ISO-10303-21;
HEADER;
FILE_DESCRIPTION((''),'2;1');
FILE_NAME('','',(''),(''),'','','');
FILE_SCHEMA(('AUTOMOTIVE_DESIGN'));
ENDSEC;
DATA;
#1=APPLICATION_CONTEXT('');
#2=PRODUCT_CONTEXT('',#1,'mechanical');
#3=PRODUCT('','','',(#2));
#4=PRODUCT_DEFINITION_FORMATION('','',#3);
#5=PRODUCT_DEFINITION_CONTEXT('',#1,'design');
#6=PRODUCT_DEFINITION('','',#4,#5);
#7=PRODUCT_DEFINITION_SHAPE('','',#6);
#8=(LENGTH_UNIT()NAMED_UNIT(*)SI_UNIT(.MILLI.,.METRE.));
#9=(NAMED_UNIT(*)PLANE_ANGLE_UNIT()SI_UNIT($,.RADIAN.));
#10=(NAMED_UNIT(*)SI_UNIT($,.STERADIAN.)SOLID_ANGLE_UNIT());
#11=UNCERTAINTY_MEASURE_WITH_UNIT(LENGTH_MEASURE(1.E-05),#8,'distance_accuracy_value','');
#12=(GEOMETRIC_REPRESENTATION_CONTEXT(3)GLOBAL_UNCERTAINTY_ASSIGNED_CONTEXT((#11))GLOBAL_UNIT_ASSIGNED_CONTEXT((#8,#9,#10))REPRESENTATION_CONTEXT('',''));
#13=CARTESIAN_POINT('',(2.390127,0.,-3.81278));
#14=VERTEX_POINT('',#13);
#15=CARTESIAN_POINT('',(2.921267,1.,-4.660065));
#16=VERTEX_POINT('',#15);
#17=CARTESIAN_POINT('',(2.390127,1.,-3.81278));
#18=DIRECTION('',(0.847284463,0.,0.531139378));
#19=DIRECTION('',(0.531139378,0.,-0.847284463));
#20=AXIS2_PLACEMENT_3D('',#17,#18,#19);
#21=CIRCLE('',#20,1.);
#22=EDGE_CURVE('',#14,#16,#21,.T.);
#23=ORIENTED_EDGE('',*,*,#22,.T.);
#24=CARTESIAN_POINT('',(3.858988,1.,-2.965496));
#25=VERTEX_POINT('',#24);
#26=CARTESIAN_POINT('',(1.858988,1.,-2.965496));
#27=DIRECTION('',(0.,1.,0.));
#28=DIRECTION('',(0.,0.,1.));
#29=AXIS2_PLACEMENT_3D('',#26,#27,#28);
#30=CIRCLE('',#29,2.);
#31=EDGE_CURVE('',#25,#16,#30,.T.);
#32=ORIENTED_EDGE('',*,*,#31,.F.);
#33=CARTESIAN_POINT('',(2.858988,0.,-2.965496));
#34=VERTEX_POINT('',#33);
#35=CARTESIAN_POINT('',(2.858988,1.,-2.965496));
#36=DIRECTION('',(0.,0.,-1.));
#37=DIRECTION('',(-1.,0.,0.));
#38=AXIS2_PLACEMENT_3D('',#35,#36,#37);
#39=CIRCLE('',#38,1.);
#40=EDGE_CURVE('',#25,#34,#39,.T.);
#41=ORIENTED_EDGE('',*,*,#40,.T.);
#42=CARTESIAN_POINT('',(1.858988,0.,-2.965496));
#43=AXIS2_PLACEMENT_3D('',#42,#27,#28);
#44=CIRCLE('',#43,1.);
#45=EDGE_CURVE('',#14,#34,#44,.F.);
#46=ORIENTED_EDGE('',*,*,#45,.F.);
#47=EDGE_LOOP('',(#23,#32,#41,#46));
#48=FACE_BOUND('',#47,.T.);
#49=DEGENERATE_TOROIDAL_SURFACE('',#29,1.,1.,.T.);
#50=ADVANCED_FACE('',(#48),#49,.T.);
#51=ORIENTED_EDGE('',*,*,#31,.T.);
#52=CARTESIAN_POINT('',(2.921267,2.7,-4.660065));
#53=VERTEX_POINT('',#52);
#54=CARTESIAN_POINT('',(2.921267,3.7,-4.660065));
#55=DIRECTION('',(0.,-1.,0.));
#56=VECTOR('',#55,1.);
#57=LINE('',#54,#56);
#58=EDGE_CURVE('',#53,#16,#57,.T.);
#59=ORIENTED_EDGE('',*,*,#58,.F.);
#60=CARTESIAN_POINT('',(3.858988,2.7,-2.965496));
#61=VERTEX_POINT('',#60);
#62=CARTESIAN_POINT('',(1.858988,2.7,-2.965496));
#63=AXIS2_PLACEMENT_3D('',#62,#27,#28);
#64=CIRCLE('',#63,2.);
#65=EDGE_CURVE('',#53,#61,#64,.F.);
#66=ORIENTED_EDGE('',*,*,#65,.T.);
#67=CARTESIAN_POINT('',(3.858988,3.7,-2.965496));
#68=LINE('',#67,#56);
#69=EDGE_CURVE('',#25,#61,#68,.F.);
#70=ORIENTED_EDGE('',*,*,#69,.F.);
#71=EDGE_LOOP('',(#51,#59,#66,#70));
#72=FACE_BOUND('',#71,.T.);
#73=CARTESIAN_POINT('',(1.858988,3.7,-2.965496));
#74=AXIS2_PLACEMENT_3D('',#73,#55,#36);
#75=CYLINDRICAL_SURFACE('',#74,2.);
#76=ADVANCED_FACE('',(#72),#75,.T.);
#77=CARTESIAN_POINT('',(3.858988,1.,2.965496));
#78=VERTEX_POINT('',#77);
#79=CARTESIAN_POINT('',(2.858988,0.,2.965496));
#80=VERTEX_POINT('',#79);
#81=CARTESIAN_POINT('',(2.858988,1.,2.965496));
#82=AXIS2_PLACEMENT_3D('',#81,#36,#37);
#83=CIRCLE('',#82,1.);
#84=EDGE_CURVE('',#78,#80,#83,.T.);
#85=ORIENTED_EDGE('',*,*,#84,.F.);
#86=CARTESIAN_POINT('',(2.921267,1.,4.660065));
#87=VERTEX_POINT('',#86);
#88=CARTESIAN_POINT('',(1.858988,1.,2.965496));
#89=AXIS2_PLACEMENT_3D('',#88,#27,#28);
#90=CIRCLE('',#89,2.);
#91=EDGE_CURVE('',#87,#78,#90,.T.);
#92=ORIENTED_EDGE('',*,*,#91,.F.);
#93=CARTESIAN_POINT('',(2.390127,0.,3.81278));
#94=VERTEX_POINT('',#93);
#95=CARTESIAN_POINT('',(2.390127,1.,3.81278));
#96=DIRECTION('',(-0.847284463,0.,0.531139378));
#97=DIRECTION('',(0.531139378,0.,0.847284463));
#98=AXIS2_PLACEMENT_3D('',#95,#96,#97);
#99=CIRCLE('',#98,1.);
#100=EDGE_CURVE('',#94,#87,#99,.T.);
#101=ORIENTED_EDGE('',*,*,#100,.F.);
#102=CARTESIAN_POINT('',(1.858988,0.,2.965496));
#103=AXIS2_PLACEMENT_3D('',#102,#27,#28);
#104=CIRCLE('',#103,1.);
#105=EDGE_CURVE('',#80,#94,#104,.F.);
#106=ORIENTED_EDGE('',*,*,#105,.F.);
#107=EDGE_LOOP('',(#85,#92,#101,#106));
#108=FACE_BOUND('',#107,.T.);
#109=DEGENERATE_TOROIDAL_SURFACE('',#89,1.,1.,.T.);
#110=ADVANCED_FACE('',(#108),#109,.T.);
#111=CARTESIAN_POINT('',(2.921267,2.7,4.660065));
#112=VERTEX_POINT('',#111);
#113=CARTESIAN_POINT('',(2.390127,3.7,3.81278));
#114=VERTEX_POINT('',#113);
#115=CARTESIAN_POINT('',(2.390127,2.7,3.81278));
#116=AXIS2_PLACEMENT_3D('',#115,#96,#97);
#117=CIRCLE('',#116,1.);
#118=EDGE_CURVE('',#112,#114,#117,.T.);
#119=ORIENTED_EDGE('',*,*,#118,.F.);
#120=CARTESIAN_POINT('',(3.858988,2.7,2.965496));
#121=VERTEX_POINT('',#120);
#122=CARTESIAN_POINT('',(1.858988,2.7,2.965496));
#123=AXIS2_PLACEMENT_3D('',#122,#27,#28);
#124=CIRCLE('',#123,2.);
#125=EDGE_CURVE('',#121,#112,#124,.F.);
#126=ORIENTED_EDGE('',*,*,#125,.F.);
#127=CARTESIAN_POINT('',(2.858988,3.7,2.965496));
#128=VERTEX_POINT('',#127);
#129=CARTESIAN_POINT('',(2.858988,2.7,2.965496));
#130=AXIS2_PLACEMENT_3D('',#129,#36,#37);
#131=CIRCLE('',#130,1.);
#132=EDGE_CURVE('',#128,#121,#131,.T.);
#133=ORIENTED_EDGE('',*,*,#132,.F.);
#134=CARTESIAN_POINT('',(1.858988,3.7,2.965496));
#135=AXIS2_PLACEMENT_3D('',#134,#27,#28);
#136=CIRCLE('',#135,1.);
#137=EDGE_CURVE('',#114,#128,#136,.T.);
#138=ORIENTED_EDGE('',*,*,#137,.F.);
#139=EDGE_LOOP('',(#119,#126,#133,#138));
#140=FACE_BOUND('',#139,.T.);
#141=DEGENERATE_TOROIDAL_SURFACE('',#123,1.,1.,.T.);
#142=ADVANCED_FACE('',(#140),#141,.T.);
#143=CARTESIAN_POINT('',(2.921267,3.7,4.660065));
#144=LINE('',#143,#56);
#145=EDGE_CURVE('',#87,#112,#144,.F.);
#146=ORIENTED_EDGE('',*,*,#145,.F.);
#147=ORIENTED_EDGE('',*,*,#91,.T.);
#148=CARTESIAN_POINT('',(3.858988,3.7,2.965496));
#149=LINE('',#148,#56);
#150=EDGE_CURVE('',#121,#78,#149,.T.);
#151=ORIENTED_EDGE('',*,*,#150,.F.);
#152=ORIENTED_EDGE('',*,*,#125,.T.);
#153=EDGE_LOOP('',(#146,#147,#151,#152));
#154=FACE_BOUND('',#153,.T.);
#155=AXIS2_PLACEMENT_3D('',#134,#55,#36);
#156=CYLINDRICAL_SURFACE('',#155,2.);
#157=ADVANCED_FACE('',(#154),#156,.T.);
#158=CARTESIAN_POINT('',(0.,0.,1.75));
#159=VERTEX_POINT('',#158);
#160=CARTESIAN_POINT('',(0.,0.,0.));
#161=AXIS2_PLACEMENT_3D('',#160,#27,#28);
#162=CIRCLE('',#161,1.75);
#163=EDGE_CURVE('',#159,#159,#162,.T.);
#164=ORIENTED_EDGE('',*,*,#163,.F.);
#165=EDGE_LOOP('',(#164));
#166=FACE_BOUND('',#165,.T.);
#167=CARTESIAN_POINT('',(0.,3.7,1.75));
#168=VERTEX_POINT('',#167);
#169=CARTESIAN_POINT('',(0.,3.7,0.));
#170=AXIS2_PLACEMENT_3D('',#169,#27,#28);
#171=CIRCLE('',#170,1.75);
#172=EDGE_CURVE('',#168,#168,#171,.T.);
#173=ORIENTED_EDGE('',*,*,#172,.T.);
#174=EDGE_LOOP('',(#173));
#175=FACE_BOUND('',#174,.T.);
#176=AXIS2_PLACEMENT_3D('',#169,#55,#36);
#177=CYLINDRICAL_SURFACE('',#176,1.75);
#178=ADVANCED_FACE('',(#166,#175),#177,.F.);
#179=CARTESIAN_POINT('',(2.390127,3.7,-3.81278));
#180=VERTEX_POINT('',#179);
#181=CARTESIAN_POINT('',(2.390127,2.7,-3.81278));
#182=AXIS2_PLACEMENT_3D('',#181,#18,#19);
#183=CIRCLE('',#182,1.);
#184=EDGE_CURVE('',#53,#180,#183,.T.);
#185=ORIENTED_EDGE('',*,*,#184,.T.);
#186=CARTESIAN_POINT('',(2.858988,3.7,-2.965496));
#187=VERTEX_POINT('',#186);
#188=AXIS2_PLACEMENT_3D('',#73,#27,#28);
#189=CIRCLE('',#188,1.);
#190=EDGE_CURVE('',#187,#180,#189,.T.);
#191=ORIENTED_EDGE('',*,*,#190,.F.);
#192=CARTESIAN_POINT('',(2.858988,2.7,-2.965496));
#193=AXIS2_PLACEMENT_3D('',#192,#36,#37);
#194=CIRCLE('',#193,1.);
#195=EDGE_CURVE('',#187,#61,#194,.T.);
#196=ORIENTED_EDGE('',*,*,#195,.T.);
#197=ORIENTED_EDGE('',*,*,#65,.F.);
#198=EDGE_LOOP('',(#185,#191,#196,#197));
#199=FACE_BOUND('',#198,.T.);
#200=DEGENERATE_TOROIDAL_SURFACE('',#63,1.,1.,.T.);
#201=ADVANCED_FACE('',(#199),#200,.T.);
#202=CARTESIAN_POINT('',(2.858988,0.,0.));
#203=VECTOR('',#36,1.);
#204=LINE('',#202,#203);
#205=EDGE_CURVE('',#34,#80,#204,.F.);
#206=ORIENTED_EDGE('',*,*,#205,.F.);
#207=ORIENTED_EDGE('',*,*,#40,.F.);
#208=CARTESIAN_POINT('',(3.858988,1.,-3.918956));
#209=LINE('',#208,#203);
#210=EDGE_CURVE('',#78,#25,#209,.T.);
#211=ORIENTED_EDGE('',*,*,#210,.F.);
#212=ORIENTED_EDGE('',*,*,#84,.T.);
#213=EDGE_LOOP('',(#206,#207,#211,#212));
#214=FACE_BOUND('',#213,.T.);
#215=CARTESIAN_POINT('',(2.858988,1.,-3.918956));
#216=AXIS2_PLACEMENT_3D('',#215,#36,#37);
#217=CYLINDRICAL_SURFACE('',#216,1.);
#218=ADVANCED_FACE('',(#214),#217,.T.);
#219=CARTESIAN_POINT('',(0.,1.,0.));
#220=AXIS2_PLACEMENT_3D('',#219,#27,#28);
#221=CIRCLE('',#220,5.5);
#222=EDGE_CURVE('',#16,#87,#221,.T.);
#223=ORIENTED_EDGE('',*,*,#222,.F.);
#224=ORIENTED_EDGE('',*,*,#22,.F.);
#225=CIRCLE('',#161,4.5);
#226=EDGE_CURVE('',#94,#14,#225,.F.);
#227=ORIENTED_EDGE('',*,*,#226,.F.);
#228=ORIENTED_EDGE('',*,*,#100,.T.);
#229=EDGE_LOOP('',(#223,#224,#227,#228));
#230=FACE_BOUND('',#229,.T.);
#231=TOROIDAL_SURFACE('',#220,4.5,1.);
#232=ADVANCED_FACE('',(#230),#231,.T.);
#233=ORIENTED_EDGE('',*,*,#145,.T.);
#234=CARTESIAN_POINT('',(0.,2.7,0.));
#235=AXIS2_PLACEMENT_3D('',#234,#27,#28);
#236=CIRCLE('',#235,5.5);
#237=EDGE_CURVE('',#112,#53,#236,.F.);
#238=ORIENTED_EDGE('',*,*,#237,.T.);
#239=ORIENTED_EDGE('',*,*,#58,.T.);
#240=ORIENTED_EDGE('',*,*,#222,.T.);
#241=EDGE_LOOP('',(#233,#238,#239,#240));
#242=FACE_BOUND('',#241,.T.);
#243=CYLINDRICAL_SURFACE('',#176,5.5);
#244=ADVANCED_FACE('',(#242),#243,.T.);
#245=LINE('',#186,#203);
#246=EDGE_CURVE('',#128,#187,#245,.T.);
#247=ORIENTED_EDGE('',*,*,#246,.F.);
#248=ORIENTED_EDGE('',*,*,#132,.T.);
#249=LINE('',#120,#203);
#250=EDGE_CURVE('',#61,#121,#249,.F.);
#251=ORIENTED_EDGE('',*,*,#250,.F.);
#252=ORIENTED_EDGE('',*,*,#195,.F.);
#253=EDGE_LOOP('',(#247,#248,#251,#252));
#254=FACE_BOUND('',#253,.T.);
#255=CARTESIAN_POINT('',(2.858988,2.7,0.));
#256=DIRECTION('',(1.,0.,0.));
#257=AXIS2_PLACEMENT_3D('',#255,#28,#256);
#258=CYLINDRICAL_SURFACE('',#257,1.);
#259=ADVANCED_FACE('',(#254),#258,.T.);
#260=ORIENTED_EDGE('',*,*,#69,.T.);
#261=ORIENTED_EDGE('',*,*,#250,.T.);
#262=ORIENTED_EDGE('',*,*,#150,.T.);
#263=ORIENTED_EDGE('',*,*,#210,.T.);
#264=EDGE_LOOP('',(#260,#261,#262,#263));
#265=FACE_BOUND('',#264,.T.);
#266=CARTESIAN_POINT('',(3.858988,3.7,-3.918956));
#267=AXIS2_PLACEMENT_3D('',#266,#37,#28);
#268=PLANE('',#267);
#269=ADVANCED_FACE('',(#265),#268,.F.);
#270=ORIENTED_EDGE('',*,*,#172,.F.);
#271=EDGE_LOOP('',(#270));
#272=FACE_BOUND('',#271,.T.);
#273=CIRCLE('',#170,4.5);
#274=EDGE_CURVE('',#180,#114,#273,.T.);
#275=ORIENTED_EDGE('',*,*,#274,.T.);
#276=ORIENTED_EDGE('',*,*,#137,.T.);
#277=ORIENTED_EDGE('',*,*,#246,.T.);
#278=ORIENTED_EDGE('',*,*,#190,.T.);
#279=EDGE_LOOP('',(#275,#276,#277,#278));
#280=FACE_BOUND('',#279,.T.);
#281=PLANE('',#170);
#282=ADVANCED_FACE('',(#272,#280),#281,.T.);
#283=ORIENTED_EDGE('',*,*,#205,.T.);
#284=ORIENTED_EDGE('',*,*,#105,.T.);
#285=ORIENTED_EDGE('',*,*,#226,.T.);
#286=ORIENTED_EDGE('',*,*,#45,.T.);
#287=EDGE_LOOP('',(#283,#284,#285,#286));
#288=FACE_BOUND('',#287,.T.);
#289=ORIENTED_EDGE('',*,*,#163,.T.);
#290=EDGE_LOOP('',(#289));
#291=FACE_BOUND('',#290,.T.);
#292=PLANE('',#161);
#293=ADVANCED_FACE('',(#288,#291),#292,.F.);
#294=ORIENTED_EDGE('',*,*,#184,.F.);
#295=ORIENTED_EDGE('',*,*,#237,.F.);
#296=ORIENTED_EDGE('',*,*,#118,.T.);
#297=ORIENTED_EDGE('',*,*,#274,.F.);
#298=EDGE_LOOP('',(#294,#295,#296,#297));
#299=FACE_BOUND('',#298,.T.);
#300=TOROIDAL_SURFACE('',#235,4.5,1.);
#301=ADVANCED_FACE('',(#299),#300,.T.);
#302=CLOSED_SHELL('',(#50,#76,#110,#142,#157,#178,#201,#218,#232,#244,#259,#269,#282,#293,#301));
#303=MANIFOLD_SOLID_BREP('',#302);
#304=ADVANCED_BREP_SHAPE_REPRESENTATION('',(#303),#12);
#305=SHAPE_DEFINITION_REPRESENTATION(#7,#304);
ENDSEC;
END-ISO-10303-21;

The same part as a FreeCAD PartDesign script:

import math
import FreeCAD as App
import Part
import Sketcher

V = App.Vector
Q = App.Units.Quantity


def edges_at(feature, points):
    """Names of the edges that pass closest to the given points."""
    edges = feature.Shape.Edges
    near = lambda p: min(range(len(edges)), key=lambda i: edges[i].distToShape(Part.Vertex(*p))[0])
    return sorted({f"Edge{near(p) + 1}" for p in points})

doc = App.newDocument("Part")
body = doc.addObject("PartDesign::Body", "Body")

# Sketch on XZ plane
sketch1 = body.newObject("Sketcher::SketchObject", "Sketch")
sketch1.AttachmentSupport = (doc.getObject("XZ_Plane"), [""])
sketch1.MapMode = "FlatFace"
sketch1.addGeometry([
    Part.LineSegment(V(3.858988, 3.918956, 0), V(3.858988, -3.918956, 0)),
    Part.ArcOfCircle(Part.Circle(V(0, 0, 0), V(0, 0, 1), 5.5), math.radians(45.44174), math.radians(314.55826)),
    Part.Circle(V(0, 0, 0), V(0, 0, 1), 1.75),
], False)
sketch1.addConstraint([
    Sketcher.Constraint("Coincident", 0, 1, 1, 1),
    Sketcher.Constraint("Coincident", 1, 2, 0, 2),
    Sketcher.Constraint("Vertical", 0),
    Sketcher.Constraint("Coincident", 1, 3, -1, 1),
    Sketcher.Constraint("Coincident", 2, 3, -1, 1),
    Sketcher.Constraint("Diameter", 2, Q("3.5 mm")),
    Sketcher.Constraint("Radius", 1, Q("5.5 mm")),
    Sketcher.Constraint("DistanceY", 0, 2, 0, 1, Q("7.837911 mm")),
])
pad1 = body.newObject("PartDesign::Pad", "Pad")
pad1.Profile = sketch1
pad1.Length = 3.7
pad1.Reversed = True
doc.recompute()

fillet = body.newObject("PartDesign::Fillet", "Fillet")
fillet.Base = (pad1, edges_at(pad1, [(3.859, 1.85, -3.919), (3.859, 1.85, 3.919)]))
fillet.Radius = 2
doc.recompute()

fillet2 = body.newObject("PartDesign::Fillet", "Fillet001")
fillet2.Base = (fillet, edges_at(fillet, [
    (3.859, 0, 0),
    (3.859, 3.7, 0),
    (-5.5, 0, 0),
    (3.609, 0, -3.934),
    (3.609, 0, 3.934),
    (-5.5, 3.7, 0),
    (3.609, 3.7, -3.934),
    (3.609, 3.7, 3.934),
]))
fillet2.Radius = 1

doc.recompute()
